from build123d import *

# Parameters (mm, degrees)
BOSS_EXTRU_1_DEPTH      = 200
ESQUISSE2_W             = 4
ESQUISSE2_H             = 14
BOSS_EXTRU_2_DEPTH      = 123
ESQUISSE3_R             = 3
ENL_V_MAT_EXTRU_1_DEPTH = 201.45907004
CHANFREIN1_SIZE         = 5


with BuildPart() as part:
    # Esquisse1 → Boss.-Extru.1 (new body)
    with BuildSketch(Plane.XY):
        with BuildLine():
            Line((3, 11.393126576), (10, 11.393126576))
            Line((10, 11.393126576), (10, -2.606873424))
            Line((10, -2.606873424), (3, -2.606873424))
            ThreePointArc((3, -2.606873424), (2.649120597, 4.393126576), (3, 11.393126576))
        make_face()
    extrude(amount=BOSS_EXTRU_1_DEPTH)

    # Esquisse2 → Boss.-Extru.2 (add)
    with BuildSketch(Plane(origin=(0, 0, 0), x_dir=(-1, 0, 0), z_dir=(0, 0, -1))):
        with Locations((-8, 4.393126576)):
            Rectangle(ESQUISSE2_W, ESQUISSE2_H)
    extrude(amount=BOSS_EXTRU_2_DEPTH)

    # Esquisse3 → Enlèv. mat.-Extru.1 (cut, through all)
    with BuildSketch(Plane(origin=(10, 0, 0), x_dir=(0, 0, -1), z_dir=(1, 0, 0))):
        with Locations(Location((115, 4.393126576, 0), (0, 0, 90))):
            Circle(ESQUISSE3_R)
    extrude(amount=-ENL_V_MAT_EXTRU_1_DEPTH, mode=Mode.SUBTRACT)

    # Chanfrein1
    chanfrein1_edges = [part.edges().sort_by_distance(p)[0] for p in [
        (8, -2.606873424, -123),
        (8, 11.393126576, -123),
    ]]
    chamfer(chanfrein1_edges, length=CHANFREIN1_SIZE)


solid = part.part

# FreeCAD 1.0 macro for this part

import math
import FreeCAD as App
import Part
import Sketcher

V = App.Vector


def edges_at(feature, points):
    """Names of the edges that pass closest to the given points."""
    edges = feature.Shape.Edges
    near = lambda p: min(range(len(edges)), key=lambda i: edges[i].distToShape(Part.Vertex(*p))[0])
    return sorted({f"Edge{near(p) + 1}" for p in points})


def add_polygon(sketch, points):
    """Adds a closed chain of lines whose ends are joined by coincident constraints."""
    first, n = sketch.GeometryCount, len(points)
    for a, b in zip(points, points[1:] + points[:1]):
        sketch.addGeometry(Part.LineSegment(App.Vector(*a, 0), App.Vector(*b, 0)), False)
    for i in range(n):
        sketch.addConstraint(Sketcher.Constraint("Coincident", first + i, 2, first + (i + 1) % n, 1))

doc = App.newDocument("Part")
params = doc.addObject("Spreadsheet::Sheet", "Params")
for row, (alias, value) in enumerate([
    ("sketch1_radius", "70 mm"),
    ("sketch1_width", "7 mm"),
    ("sketch1_height", "14 mm"),
    ("pad1_length", "200 mm"),
    ("sketch2_width", "4 mm"),
    ("sketch2_height", "14 mm"),
    ("pad2_length", "123 mm"),
    ("sketch3_diameter", "6 mm"),
    ("chamfer_size", "5 mm"),
], start=1):
    params.set(f"A{row}", alias)
    params.set(f"B{row}", "=" + value)
    params.setAlias(f"B{row}", alias)

body = doc.addObject("PartDesign::Body", "Body")

sketch1 = doc.addObject("Sketcher::SketchObject", "Sketch")
body.addObject(sketch1)
sketch1.AttachmentSupport = (doc.XY_Plane, [""])
sketch1.MapMode = "FlatFace"
sketch1.addGeometry([
    Part.LineSegment(V(10, 11, 0), V(3, 11, 0)),
    Part.ArcOfCircle(Part.Circle(V(73, 4, 0), V(0, 0, 1), 70), math.radians(174.26), math.radians(185.74)),
    Part.LineSegment(V(3, -3, 0), V(10, -3, 0)),
    Part.LineSegment(V(10, -3, 0), V(10, 11, 0)),
], False)
sketch1.addConstraint([
    Sketcher.Constraint("Coincident", 0, 2, 1, 1),
    Sketcher.Constraint("Coincident", 1, 2, 2, 1),
    Sketcher.Constraint("Coincident", 2, 2, 3, 1),
    Sketcher.Constraint("Coincident", 3, 2, 0, 1),
    Sketcher.Constraint("Horizontal", 0),
    Sketcher.Constraint("Horizontal", 2),
    Sketcher.Constraint("Vertical", 3),
    Sketcher.Constraint("Vertical", 0, 2, 1, 2),
    Sketcher.Constraint("Radius", 1, 70.0),
    Sketcher.Constraint("DistanceX", 0, 2, 0, 1, 7.0),
    Sketcher.Constraint("DistanceY", 3, 1, 3, 2, 14.0),
    Sketcher.Constraint("DistanceX", -1, 1, 0, 2, 3.0),
    Sketcher.Constraint("DistanceY", -1, 1, 1, 3, 4.393127),
])
sketch1.setExpression("Constraints[8]", "Params.sketch1_radius")
sketch1.setExpression("Constraints[9]", "Params.sketch1_width")
sketch1.setExpression("Constraints[10]", "Params.sketch1_height")
pad1 = doc.addObject("PartDesign::Pad", "Pad")
body.addObject(pad1)
pad1.Profile = sketch1
pad1.setExpression("Length", "Params.pad1_length")

sketch2 = doc.addObject("Sketcher::SketchObject", "Sketch001")
body.addObject(sketch2)
sketch2.AttachmentSupport = (doc.XY_Plane, [""])
sketch2.MapMode = "FlatFace"
add_polygon(sketch2, [(10, 11.4), (10, -2.6), (6, -2.6), (6, 11.4)])
sketch2.addConstraint([
    Sketcher.Constraint("Vertical", 0),
    Sketcher.Constraint("Horizontal", 1),
    Sketcher.Constraint("Vertical", 2),
    Sketcher.Constraint("Horizontal", 3),
    Sketcher.Constraint("DistanceX", 1, 2, 1, 1, 4.0),
    Sketcher.Constraint("DistanceY", 0, 2, 0, 1, 14.0),
    Sketcher.Constraint("DistanceX", -1, 1, 0, 2, 10.0),
    Sketcher.Constraint("DistanceY", 0, 2, -1, 1, 2.606873),
])
sketch2.setExpression("Constraints[8]", "Params.sketch2_width")
sketch2.setExpression("Constraints[9]", "Params.sketch2_height")
pad2 = doc.addObject("PartDesign::Pad", "Pad001")
body.addObject(pad2)
pad2.Profile = sketch2
pad2.setExpression("Length", "Params.pad2_length")
pad2.Reversed = True

sketch3 = doc.addObject("Sketcher::SketchObject", "Sketch002")
body.addObject(sketch3)
sketch3.AttachmentSupport = (doc.YZ_Plane, [""])
sketch3.MapMode = "FlatFace"
sketch3.AttachmentOffset = App.Placement(V(0, 0, 10), App.Rotation())
sketch3.addGeometry(Part.Circle(V(4.4, -115, 0), V(0, 0, 1), 3), False)
sketch3.addConstraint([
    Sketcher.Constraint("Diameter", 0, 6.0),
    Sketcher.Constraint("DistanceY", 0, 3, -1, 1, 115.0),
    Sketcher.Constraint("DistanceX", -1, 1, 0, 3, 4.393127),
])
sketch3.setExpression("Constraints[0]", "Params.sketch3_diameter")
pocket1 = doc.addObject("PartDesign::Pocket", "Pocket")
body.addObject(pocket1)
pocket1.Profile = sketch3
pocket1.Type = "ThroughAll"
doc.recompute()

chamfer = doc.addObject("PartDesign::Chamfer", "Chamfer")
body.addObject(chamfer)
chamfer.Base = (pocket1, edges_at(pocket1, [(8, -2.607, -123), (8, 11.393, -123)]))
chamfer.setExpression("Size", "Params.chamfer_size")

doc.recompute()
